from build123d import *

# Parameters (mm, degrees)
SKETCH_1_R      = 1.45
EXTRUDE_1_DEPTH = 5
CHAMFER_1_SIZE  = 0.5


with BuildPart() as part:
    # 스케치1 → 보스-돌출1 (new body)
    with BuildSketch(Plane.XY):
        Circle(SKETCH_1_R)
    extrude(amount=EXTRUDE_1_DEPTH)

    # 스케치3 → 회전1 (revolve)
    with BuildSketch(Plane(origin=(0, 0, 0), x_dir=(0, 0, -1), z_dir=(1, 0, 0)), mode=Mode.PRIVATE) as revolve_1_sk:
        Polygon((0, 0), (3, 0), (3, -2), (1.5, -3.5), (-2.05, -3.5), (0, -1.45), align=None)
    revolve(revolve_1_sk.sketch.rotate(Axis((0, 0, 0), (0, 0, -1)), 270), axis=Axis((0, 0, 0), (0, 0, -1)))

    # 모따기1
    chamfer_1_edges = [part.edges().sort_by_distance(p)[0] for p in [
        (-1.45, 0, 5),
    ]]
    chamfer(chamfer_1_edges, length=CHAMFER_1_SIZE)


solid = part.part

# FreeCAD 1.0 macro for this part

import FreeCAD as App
import Part
import Sketcher
from FreeCAD import Vector
Q = App.Units.Quantity


def edges_at(feature, points):
    """Names of the edges that pass closest to the given points."""
    edges = feature.Shape.Edges
    near = lambda p: min(range(len(edges)), key=lambda i: edges[i].distToShape(Part.Vertex(*p))[0])
    return sorted({f"Edge{near(p) + 1}" for p in points})

doc = App.newDocument("Part")
body = doc.addObject("PartDesign::Body", "Body")

# Sketch on XY plane
sketch1 = body.newObject("Sketcher::SketchObject", "Sketch")
sketch1.AttachmentSupport = (doc.getObject("XY_Plane"), [""])
sketch1.MapMode = "FlatFace"
sketch1.addGeometry(Part.Circle(Vector(0, 0, 0), Vector(0, 0, 1), 1.4), False)
sketch1.addConstraint([
    Sketcher.Constraint("Coincident", 0, 3, -1, 1),
    Sketcher.Constraint("Diameter", 0, 2.9),
])
pad1 = body.newObject("PartDesign::Pad", "Pad")
pad1.Profile = sketch1
pad1.Length = 5

# Sketch on YZ plane
sketch2 = body.newObject("Sketcher::SketchObject", "Sketch001")
sketch2.AttachmentSupport = (doc.getObject("YZ_Plane"), [""])
sketch2.MapMode = "FlatFace"
sketch2.addGeometry([
    Part.LineSegment(Vector(0, -3, 0), Vector(0, 0, 0)),  # 0
    Part.LineSegment(Vector(0, 0, 0), Vector(-1.4, 0, 0)),  # 1
    Part.LineSegment(Vector(-1.4, 0, 0), Vector(-3.5, 2, 0)),  # 2
    Part.LineSegment(Vector(-3.5, 2, 0), Vector(-3.5, -1.5, 0)),  # 3
    Part.LineSegment(Vector(-3.5, -1.5, 0), Vector(-2, -3, 0)),  # 4
    Part.LineSegment(Vector(-2, -3, 0), Vector(0, -3, 0)),  # 5
], False)
sketch2.addConstraint([
    Sketcher.Constraint("Coincident", 0, 2, 1, 1),
    Sketcher.Constraint("Coincident", 1, 2, 2, 1),
    Sketcher.Constraint("Coincident", 2, 2, 3, 1),
    Sketcher.Constraint("Coincident", 3, 2, 4, 1),
    Sketcher.Constraint("Coincident", 4, 2, 5, 1),
    Sketcher.Constraint("Coincident", 5, 2, 0, 1),
    Sketcher.Constraint("Vertical", 0),
    Sketcher.Constraint("Horizontal", 1),
    Sketcher.Constraint("Vertical", 3),
    Sketcher.Constraint("Horizontal", 5),
    Sketcher.Constraint("Coincident", 0, 2, -1, 1),
    Sketcher.Constraint("Parallel", 2, 4),
    Sketcher.Constraint("DistanceX", 5, 1, 5, 2, 2.0),
    Sketcher.Constraint("DistanceY", 0, 1, 0, 2, 3.0),
    Sketcher.Constraint("Angle", 2, Q("135 deg")),
    Sketcher.Constraint("DistanceX", 1, 2, 1, 1, 1.45),
    Sketcher.Constraint("DistanceX", 2, 2, -1, 1, 3.5),
])
revolution = body.newObject("PartDesign::Revolution", "Revolution")
revolution.Profile = sketch2
revolution.ReferenceAxis = (sketch2, ["V_Axis"])
revolution.Angle = 360
doc.recompute()

chamfer = body.newObject("PartDesign::Chamfer", "Chamfer")
chamfer.Base = (revolution, edges_at(revolution, [(-1.45, 0, 5)]))
chamfer.Size = 0.5

doc.recompute()
